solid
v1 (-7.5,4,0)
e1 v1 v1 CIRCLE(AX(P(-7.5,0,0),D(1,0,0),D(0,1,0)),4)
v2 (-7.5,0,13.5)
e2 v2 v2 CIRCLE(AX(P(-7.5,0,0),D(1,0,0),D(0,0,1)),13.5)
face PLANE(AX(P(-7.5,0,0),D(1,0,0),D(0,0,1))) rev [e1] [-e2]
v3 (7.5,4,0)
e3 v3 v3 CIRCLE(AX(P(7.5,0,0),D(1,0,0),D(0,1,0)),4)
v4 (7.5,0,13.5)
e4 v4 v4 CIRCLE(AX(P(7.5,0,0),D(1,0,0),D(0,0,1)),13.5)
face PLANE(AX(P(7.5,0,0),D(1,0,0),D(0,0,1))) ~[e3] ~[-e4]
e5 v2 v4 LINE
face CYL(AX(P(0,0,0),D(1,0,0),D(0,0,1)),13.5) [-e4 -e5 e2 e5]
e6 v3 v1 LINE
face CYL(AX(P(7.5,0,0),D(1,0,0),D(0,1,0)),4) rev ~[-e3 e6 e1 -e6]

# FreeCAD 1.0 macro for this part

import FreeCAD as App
import Part
import Sketcher

V = App.Vector
Q = App.Units.Quantity

doc = App.newDocument("Part")
body = doc.addObject("PartDesign::Body", "Body")

sketch1 = body.newObject("Sketcher::SketchObject", "Sketch")
sketch1.AttachmentSupport = (doc.getObject("XZ_Plane"), [""])
sketch1.MapMode = "FlatFace"
sketch1.addGeometry(Part.LineSegment(V(-8, 14, 0), V(-8, 0, 0)), False)
sketch1.addGeometry(Part.LineSegment(V(-8, 0, 0), V(8, 0, 0)), False)
sketch1.addGeometry(Part.LineSegment(V(8, 0, 0), V(8, 14, 0)), False)
sketch1.addGeometry(Part.LineSegment(V(8, 14, 0), V(-8, 14, 0)), False)
sketch1.addConstraint(Sketcher.Constraint("Coincident", 0, 2, 1, 1))
sketch1.addConstraint(Sketcher.Constraint("Coincident", 1, 2, 2, 1))
sketch1.addConstraint(Sketcher.Constraint("Coincident", 2, 2, 3, 1))
sketch1.addConstraint(Sketcher.Constraint("Coincident", 3, 2, 0, 1))
sketch1.addConstraint(Sketcher.Constraint("Vertical", 0))
sketch1.addConstraint(Sketcher.Constraint("Horizontal", 1))
sketch1.addConstraint(Sketcher.Constraint("Vertical", 2))
sketch1.addConstraint(Sketcher.Constraint("Horizontal", 3))
sketch1.addConstraint(Sketcher.Constraint("Symmetric", 0, 2, 1, 2, -1, 1))
sketch1.addConstraint(Sketcher.Constraint("DistanceX", 1, 1, 1, 2, Q("15 mm")))
sketch1.addConstraint(Sketcher.Constraint("DistanceY", 0, 2, 0, 1, Q("13.5 mm")))
revolution = body.newObject("PartDesign::Revolution", "Revolution")
revolution.Profile = sketch1
revolution.ReferenceAxis = (sketch1, ["H_Axis"])
revolution.Angle = 360

sketch2 = body.newObject("Sketcher::SketchObject", "Sketch001")
sketch2.AttachmentSupport = (doc.getObject("YZ_Plane"), [""])
sketch2.MapMode = "FlatFace"
sketch2.AttachmentOffset = App.Placement(V(0, 0, 7.5), App.Rotation())
sketch2.addGeometry(Part.Circle(V(0, 0, 0), V(0, 0, 1), 4), False)
sketch2.addConstraint(Sketcher.Constraint("Coincident", 0, 3, -1, 1))
sketch2.addConstraint(Sketcher.Constraint("Diameter", 0, Q("8 mm")))
pocket1 = body.newObject("PartDesign::Pocket", "Pocket")
pocket1.Profile = sketch2
pocket1.Type = "ThroughAll"

doc.recompute()
